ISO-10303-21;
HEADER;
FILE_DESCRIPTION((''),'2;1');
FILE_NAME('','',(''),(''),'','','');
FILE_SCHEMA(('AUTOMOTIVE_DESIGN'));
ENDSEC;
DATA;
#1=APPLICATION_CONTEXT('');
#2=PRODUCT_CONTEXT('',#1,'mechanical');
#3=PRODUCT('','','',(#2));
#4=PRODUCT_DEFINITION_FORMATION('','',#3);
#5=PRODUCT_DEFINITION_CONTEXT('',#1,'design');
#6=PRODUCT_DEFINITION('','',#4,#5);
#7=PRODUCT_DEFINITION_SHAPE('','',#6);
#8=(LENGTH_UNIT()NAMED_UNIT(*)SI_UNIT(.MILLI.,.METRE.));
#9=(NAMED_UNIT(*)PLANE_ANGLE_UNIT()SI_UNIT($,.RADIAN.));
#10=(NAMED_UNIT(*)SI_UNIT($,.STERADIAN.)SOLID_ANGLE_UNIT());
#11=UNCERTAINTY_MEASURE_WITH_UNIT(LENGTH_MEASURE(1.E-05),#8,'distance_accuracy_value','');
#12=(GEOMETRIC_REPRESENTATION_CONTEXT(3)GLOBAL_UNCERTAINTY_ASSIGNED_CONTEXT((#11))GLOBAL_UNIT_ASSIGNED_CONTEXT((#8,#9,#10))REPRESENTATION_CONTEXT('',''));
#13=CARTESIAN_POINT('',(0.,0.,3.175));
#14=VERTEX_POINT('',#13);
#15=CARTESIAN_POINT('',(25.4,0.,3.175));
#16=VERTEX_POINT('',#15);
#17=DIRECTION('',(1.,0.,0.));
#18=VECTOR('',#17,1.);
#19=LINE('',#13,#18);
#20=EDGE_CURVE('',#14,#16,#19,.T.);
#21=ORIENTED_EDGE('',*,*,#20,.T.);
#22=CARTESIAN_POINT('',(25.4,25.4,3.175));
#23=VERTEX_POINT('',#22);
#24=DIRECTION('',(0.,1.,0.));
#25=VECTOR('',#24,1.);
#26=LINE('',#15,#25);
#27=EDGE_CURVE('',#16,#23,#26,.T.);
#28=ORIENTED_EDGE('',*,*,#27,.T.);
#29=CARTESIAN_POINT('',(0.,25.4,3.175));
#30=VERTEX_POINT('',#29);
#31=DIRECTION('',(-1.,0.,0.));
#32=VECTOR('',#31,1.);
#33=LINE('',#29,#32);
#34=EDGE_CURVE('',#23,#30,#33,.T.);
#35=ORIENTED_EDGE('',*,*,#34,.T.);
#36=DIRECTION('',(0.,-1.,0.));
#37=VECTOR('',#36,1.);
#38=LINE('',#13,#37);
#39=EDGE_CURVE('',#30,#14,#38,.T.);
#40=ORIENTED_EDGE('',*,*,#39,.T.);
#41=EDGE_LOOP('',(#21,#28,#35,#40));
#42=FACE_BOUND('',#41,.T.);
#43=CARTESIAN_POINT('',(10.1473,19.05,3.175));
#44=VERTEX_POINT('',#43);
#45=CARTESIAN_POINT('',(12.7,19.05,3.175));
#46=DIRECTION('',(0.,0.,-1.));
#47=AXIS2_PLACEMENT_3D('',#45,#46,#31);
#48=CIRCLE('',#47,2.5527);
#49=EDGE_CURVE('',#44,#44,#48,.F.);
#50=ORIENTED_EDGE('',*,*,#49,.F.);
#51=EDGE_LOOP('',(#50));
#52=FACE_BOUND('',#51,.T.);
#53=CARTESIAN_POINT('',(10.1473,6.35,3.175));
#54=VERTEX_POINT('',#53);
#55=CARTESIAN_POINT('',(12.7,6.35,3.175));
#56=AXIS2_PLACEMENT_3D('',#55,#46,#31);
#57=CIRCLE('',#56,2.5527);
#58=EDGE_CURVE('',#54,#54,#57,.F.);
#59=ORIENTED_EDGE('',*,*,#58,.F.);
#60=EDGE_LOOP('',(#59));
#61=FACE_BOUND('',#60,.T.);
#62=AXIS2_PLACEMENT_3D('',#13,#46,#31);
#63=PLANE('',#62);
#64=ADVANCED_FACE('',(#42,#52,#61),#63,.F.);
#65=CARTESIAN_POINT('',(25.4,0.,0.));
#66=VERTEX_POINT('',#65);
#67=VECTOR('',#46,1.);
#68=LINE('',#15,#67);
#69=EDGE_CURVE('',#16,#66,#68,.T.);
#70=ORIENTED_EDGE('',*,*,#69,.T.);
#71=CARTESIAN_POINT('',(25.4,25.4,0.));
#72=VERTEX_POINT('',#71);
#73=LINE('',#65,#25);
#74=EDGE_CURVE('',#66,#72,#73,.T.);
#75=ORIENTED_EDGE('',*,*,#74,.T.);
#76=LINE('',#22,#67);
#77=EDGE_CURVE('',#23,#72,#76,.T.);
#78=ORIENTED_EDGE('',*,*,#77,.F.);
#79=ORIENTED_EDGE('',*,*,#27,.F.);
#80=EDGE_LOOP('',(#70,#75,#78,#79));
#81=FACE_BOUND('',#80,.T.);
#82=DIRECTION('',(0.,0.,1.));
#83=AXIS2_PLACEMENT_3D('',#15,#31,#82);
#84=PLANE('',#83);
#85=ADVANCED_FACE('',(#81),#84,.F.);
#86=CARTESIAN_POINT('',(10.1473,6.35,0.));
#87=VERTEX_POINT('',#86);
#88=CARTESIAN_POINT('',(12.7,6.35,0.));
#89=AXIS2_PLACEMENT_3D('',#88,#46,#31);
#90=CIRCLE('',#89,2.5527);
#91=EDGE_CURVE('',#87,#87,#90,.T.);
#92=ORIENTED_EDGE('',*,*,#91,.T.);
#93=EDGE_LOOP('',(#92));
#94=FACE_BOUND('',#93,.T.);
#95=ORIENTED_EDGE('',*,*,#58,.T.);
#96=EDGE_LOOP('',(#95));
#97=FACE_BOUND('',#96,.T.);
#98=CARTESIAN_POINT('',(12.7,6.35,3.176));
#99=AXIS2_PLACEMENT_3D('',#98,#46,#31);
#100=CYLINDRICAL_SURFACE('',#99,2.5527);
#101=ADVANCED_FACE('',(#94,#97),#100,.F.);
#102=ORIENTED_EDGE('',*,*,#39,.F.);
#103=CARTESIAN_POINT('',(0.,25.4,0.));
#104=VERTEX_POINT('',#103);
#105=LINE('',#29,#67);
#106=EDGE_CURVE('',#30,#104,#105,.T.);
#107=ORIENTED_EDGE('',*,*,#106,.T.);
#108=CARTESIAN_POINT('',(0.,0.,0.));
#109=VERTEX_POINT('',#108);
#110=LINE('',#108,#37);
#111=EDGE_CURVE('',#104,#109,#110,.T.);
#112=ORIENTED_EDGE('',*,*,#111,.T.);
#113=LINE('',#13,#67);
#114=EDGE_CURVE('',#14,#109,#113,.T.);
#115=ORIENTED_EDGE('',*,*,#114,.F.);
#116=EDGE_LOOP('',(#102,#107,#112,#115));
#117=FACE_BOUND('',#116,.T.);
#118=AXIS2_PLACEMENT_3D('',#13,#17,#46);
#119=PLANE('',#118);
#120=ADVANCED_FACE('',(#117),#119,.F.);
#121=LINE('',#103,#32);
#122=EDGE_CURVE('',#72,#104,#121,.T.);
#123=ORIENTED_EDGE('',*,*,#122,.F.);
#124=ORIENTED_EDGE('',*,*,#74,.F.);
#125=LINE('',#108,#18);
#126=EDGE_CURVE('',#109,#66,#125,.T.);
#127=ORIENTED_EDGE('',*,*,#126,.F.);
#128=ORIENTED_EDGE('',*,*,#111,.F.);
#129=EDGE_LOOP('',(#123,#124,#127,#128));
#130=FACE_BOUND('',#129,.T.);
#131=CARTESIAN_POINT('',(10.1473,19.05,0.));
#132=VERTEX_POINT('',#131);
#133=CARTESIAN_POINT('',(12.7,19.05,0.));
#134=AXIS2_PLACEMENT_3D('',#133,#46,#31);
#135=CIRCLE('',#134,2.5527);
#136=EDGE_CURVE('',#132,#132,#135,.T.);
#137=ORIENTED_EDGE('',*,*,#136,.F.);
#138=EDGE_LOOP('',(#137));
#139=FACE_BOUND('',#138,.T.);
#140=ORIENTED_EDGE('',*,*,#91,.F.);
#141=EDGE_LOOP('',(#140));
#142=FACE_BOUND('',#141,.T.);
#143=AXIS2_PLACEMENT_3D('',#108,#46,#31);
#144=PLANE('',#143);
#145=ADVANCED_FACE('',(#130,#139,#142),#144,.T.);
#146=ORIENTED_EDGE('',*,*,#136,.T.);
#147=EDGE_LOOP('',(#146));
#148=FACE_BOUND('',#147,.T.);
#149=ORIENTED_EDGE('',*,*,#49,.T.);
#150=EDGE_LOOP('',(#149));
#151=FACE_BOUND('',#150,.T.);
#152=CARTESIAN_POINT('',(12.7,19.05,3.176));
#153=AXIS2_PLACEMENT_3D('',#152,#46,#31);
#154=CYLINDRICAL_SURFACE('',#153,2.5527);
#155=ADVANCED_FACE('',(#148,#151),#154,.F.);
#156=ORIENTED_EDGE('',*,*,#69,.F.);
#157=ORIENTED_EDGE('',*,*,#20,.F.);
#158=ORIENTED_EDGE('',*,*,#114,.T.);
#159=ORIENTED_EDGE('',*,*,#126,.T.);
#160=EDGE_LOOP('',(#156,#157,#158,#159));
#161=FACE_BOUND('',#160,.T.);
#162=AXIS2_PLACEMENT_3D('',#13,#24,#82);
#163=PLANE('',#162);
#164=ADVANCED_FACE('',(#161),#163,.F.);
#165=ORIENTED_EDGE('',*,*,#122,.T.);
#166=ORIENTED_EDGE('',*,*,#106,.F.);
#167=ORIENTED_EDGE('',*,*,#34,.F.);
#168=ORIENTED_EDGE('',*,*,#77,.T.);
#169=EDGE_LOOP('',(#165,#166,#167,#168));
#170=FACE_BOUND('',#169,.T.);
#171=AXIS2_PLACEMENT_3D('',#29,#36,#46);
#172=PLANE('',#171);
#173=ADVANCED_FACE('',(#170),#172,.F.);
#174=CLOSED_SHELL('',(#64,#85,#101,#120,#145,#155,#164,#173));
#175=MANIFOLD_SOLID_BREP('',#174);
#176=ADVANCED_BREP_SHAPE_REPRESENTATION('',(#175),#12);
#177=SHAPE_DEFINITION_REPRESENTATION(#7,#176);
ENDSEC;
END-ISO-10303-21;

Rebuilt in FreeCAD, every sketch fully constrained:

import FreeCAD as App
import Part
import Sketcher

V = App.Vector
Q = App.Units.Quantity


def add_polygon(sketch, points):
    """Adds a closed chain of lines whose ends are joined by coincident constraints."""
    first, n = sketch.GeometryCount, len(points)
    for a, b in zip(points, points[1:] + points[:1]):
        sketch.addGeometry(Part.LineSegment(App.Vector(*a, 0), App.Vector(*b, 0)), False)
    for i in range(n):
        sketch.addConstraint(Sketcher.Constraint("Coincident", first + i, 2, first + (i + 1) % n, 1))

doc = App.newDocument("Part")
params = doc.addObject("Spreadsheet::Sheet", "Params")
for row, (alias, value) in enumerate([
    ("sketch1_width", "1 in"),
    ("pad1_length", "0.125 in"),
    ("sketch2_diameter", "0.201 in"),
    ("sketch3_diameter", "0.201 in"),
], start=1):
    params.set(f"A{row}", alias)
    params.set(f"B{row}", "=" + value)
    params.setAlias(f"B{row}", alias)

body = doc.addObject("PartDesign::Body", "Body")

# Sketch on XY plane
sketch1 = doc.addObject("Sketcher::SketchObject", "Sketch")
body.addObject(sketch1)
sketch1.AttachmentSupport = (doc.XY_Plane, [""])
sketch1.MapMode = "FlatFace"
add_polygon(sketch1, [(0, 25), (0, 0), (25, 0), (25, 25)])  # lines 0-3
sketch1.addConstraint(Sketcher.Constraint("Vertical", 0))
sketch1.addConstraint(Sketcher.Constraint("Horizontal", 1))
sketch1.addConstraint(Sketcher.Constraint("Vertical", 2))
sketch1.addConstraint(Sketcher.Constraint("Horizontal", 3))
sketch1.addConstraint(Sketcher.Constraint("Coincident", 0, 2, -1, 1))
sketch1.addConstraint(Sketcher.Constraint("Equal", 3, 0))
sketch1.addConstraint(Sketcher.Constraint("DistanceX", 1, 1, 1, 2, Q("1 in")))
sketch1.setExpression("Constraints[10]", "Params.sketch1_width")
pad1 = doc.addObject("PartDesign::Pad", "Pad")
body.addObject(pad1)
pad1.Profile = sketch1
pad1.setExpression("Length", "Params.pad1_length")

# Sketch on XY plane
sketch2 = doc.addObject("Sketcher::SketchObject", "Sketch001")
body.addObject(sketch2)
sketch2.AttachmentSupport = (doc.XY_Plane, [""])
sketch2.MapMode = "FlatFace"
sketch2.addGeometry(Part.Circle(V(12.7, 6.3, 0), V(0, 0, 1), 2.6), False)
sketch2.addConstraint(Sketcher.Constraint("Diameter", 0, Q("0.201 in")))
sketch2.addConstraint(Sketcher.Constraint("DistanceX", -1, 1, 0, 3, Q("0.5 in")))
sketch2.addConstraint(Sketcher.Constraint("DistanceY", -1, 1, 0, 3, Q("0.25 in")))
sketch2.setExpression("Constraints[0]", "Params.sketch2_diameter")
pocket1 = doc.addObject("PartDesign::Pocket", "Pocket")
body.addObject(pocket1)
pocket1.Profile = sketch2
pocket1.Type = "UpToFirst"
pocket1.Reversed = True

# Sketch on XY plane
sketch3 = doc.addObject("Sketcher::SketchObject", "Sketch002")
body.addObject(sketch3)
sketch3.AttachmentSupport = (doc.XY_Plane, [""])
sketch3.MapMode = "FlatFace"
sketch3.addGeometry(Part.Circle(V(12.7, 19.1, 0), V(0, 0, 1), 2.6), False)
sketch3.addConstraint(Sketcher.Constraint("Diameter", 0, Q("0.201 in")))
sketch3.addConstraint(Sketcher.Constraint("DistanceX", -1, 1, 0, 3, Q("0.5 in")))
sketch3.addConstraint(Sketcher.Constraint("DistanceY", -1, 1, 0, 3, Q("0.75 in")))
sketch3.setExpression("Constraints[0]", "Params.sketch3_diameter")
pocket2 = doc.addObject("PartDesign::Pocket", "Pocket001")
body.addObject(pocket2)
pocket2.Profile = sketch3
pocket2.Type = "UpToFirst"
pocket2.Reversed = True

doc.recompute()
